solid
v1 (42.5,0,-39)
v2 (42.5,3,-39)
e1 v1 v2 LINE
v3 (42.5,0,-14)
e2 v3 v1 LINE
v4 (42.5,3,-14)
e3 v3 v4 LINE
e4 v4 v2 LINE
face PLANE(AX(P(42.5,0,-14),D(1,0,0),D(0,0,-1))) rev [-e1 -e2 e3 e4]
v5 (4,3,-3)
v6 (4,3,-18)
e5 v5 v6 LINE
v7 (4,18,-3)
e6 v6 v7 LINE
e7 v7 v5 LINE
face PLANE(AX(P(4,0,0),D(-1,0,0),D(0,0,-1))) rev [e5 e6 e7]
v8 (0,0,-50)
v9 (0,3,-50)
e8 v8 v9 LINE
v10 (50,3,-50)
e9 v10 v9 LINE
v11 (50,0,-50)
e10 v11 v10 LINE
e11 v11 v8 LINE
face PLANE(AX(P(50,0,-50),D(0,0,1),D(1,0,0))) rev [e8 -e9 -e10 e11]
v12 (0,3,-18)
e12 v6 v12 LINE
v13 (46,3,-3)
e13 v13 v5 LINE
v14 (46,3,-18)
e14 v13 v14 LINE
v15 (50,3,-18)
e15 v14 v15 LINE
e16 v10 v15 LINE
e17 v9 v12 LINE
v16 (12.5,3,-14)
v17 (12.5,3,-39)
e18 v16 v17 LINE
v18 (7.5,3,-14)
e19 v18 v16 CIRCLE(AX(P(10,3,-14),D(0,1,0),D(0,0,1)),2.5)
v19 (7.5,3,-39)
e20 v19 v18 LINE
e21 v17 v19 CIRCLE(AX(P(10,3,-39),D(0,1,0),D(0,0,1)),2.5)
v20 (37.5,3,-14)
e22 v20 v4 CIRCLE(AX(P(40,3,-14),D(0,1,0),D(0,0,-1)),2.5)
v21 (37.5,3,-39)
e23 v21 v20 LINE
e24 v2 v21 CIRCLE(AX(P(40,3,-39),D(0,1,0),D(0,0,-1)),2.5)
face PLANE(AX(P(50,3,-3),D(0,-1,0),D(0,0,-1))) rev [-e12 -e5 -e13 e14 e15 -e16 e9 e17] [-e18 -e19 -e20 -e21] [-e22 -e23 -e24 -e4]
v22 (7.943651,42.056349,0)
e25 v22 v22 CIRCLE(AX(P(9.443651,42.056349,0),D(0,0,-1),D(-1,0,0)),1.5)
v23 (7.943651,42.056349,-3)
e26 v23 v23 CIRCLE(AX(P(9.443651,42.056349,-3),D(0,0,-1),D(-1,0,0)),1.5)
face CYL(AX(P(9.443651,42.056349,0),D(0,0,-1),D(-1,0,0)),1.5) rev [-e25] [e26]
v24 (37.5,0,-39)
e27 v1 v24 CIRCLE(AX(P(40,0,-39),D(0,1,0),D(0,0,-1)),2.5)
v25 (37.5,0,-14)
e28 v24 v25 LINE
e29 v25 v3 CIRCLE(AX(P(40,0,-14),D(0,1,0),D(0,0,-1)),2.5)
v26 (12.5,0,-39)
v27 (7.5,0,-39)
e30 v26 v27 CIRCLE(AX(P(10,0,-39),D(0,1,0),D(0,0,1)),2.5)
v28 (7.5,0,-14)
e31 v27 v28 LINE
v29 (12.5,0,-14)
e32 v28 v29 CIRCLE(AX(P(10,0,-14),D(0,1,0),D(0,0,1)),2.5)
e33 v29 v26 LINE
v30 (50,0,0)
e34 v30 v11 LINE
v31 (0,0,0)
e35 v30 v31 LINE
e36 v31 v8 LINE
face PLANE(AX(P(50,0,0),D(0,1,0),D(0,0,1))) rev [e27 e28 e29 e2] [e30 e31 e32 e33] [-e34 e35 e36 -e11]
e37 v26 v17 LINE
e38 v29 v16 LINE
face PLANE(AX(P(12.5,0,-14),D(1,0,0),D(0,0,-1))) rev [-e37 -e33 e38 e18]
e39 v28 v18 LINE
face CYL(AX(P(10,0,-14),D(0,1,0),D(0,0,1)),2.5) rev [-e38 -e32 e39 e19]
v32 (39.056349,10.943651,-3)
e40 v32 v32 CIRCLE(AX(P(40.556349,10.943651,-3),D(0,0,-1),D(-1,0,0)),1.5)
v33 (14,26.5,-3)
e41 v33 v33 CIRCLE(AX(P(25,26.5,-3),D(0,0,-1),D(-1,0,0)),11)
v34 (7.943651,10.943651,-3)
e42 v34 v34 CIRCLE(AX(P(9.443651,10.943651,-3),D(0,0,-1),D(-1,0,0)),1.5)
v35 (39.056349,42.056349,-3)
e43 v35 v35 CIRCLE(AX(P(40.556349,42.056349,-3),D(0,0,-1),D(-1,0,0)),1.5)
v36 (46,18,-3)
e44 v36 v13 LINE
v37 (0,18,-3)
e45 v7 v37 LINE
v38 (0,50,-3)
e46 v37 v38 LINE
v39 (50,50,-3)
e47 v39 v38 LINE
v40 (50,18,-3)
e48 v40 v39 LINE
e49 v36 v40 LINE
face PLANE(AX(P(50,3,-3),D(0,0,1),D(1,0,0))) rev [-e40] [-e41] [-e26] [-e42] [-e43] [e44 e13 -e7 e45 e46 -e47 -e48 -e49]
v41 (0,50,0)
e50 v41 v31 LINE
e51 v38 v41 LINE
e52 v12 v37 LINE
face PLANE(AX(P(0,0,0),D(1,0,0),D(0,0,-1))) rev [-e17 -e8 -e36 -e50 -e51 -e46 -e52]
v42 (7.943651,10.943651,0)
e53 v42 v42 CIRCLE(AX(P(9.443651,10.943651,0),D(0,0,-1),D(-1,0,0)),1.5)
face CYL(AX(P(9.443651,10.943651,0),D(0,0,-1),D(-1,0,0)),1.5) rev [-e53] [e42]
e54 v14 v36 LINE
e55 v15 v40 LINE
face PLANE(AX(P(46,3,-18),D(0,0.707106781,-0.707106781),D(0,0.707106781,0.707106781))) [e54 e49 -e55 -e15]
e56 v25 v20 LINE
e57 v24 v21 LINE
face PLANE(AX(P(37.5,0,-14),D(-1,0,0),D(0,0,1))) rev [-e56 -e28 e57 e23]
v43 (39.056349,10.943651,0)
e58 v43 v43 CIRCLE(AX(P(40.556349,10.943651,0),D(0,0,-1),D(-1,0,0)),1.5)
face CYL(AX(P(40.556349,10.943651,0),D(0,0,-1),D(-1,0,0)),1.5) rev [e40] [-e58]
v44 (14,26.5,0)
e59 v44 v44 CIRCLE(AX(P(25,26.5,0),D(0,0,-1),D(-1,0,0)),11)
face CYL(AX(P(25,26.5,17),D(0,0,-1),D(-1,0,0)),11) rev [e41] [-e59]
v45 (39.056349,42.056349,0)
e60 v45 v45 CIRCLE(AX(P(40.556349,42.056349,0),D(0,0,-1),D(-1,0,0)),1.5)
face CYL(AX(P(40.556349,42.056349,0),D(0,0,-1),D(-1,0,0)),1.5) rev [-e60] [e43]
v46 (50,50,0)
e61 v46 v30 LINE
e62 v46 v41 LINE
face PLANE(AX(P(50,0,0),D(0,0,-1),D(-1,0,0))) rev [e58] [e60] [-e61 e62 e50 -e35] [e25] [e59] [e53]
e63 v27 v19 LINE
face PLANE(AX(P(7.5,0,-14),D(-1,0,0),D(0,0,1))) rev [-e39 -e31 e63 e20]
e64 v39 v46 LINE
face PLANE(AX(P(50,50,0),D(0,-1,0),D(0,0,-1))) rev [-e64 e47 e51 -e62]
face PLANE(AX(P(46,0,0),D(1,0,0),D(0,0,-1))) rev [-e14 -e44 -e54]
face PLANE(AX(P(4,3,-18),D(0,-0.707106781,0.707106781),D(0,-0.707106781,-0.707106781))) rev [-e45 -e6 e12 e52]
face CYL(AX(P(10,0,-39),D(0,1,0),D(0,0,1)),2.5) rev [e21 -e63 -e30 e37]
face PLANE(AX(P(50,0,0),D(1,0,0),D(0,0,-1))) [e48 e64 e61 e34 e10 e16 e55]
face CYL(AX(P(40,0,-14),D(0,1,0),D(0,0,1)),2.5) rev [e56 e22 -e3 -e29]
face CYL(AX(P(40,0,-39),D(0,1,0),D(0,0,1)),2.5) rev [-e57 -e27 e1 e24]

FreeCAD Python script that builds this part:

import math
import FreeCAD as App
import Part
import Sketcher
from FreeCAD import Vector

doc = App.newDocument("Part")
params = doc.addObject("Spreadsheet::Sheet", "Params")
for row, (alias, value) in enumerate([
    ("sketch1_width", "50 mm"),
    ("sketch1_width2", "3 mm"),
    ("pad1_length", "50 mm"),
    ("sketch2_diameter", "22 mm"),
    ("pocket1_length", "20 mm"),
    ("sketch3_radius", "2.5 mm"),
    ("sketch3_height", "25 mm"),
    ("sketch4_width", "15 mm"),
    ("pad2_length", "4 mm"),
    ("sketch5_diameter", "3 mm"),
], start=1):
    params.set(f"A{row}", alias)
    params.set(f"B{row}", "=" + value)
    params.setAlias(f"B{row}", alias)

body = doc.addObject("PartDesign::Body", "Body")

# Sketch on YZ plane
sketch1 = body.newObject("Sketcher::SketchObject", "Sketch")
sketch1.AttachmentSupport = (doc.getObject("YZ_Plane"), [""])
sketch1.MapMode = "FlatFace"
sketch1.addGeometry([
    Part.LineSegment(Vector(50, 0, 0), Vector(0, 0, 0)),  # 0
    Part.LineSegment(Vector(0, 0, 0), Vector(0, -50, 0)),  # 1
    Part.LineSegment(Vector(0, -50, 0), Vector(3, -50, 0)),  # 2
    Part.LineSegment(Vector(3, -50, 0), Vector(3, -3, 0)),  # 3
    Part.LineSegment(Vector(3, -3, 0), Vector(50, -3, 0)),  # 4
    Part.LineSegment(Vector(50, -3, 0), Vector(50, 0, 0)),  # 5
], False)
sketch1.addConstraint([
    Sketcher.Constraint("Coincident", 0, 2, 1, 1),
    Sketcher.Constraint("Coincident", 1, 2, 2, 1),
    Sketcher.Constraint("Coincident", 2, 2, 3, 1),
    Sketcher.Constraint("Coincident", 3, 2, 4, 1),
    Sketcher.Constraint("Coincident", 4, 2, 5, 1),
    Sketcher.Constraint("Coincident", 5, 2, 0, 1),
    Sketcher.Constraint("Horizontal", 0),
    Sketcher.Constraint("Vertical", 1),
    Sketcher.Constraint("Horizontal", 2),
    Sketcher.Constraint("Vertical", 3),
    Sketcher.Constraint("Horizontal", 4),
    Sketcher.Constraint("Vertical", 5),
    Sketcher.Constraint("Coincident", 0, 2, -1, 1),
    Sketcher.Constraint("Equal", 0, 1),
    Sketcher.Constraint("Equal", 4, 3),
    Sketcher.Constraint("DistanceX", 0, 2, 0, 1, 50.0),
    Sketcher.Constraint("DistanceX", 2, 1, 2, 2, 3.0),
])
sketch1.setExpression("Constraints[15]", "Params.sketch1_width")
sketch1.setExpression("Constraints[16]", "Params.sketch1_width2")
pad1 = body.newObject("PartDesign::Pad", "Pad")
pad1.Profile = sketch1
pad1.setExpression("Length", "Params.pad1_length")

# Sketch on XY plane
sketch2 = body.newObject("Sketcher::SketchObject", "Sketch001")
sketch2.AttachmentSupport = (doc.getObject("XY_Plane"), [""])
sketch2.MapMode = "FlatFace"
sketch2.AttachmentOffset = App.Placement(Vector(0, 0, -3), App.Rotation())
sketch2.addGeometry(Part.Circle(Vector(25, 26, 0), Vector(0, 0, 1), 11), False)
sketch2.addConstraint([
    Sketcher.Constraint("Diameter", 0, 22.0),
    Sketcher.Constraint("DistanceX", -1, 1, 0, 3, 25.0),
    Sketcher.Constraint("DistanceY", -1, 1, 0, 3, 26.5),
])
sketch2.setExpression("Constraints[0]", "Params.sketch2_diameter")
pocket1 = body.newObject("PartDesign::Pocket", "Pocket")
pocket1.Profile = sketch2
pocket1.setExpression("Length", "Params.pocket1_length")
pocket1.Reversed = True

# Sketch on XZ plane
sketch3 = body.newObject("Sketcher::SketchObject", "Sketch002")
sketch3.AttachmentSupport = (doc.getObject("XZ_Plane"), [""])
sketch3.MapMode = "FlatFace"
sketch3.AttachmentOffset = App.Placement(Vector(0, 0, -3), App.Rotation())
sketch3.addGeometry([
    Part.LineSegment(Vector(7.5, -39, 0), Vector(7.5, -14, 0)),  # 0
    Part.ArcOfCircle(Part.Circle(Vector(10, -14, 0), Vector(0, 0, 1), 2.5), math.radians(0), math.radians(180)),  # 1
    Part.LineSegment(Vector(12.5, -14, 0), Vector(12.5, -39, 0)),  # 2
    Part.ArcOfCircle(Part.Circle(Vector(10, -39, 0), Vector(0, 0, 1), 2.5), math.radians(180), math.radians(360)),  # 3
    Part.LineSegment(Vector(42.5, -14, 0), Vector(42.5, -39, 0)),  # 4
    Part.ArcOfCircle(Part.Circle(Vector(40, -39, 0), Vector(0, 0, 1), 2.5), math.radians(180), math.radians(360)),  # 5
    Part.LineSegment(Vector(37.5, -39, 0), Vector(37.5, -14, 0)),  # 6
    Part.ArcOfCircle(Part.Circle(Vector(40, -14, 0), Vector(0, 0, 1), 2.5), math.radians(0), math.radians(180)),  # 7
], False)
sketch3.addConstraint([
    Sketcher.Constraint("Tangent", 0, 2, 1, 2),
    Sketcher.Constraint("Tangent", 1, 1, 2, 1),
    Sketcher.Constraint("Tangent", 2, 2, 3, 2),
    Sketcher.Constraint("Tangent", 3, 1, 0, 1),
    Sketcher.Constraint("Tangent", 4, 2, 5, 2),
    Sketcher.Constraint("Tangent", 5, 1, 6, 1),
    Sketcher.Constraint("Tangent", 6, 2, 7, 2),
    Sketcher.Constraint("Tangent", 7, 1, 4, 1),
    Sketcher.Constraint("Vertical", 0),
    Sketcher.Constraint("Vertical", 2),
    Sketcher.Constraint("Vertical", 4),
    Sketcher.Constraint("Vertical", 6),
    Sketcher.Constraint("Equal", 3, 5),
    Sketcher.Constraint("Horizontal", 3, 3, 5, 3),
    Sketcher.Constraint("Horizontal", 1, 3, 7, 3),
    Sketcher.Constraint("Radius", 1, 2.5),
    Sketcher.Constraint("DistanceY", 0, 1, 0, 2, 25.0),
    Sketcher.Constraint("DistanceX", -1, 1, 1, 3, 10.0),
    Sketcher.Constraint("DistanceY", 1, 3, -1, 1, 14.0),
    Sketcher.Constraint("DistanceX", -1, 1, 5, 3, 40.0),
])
sketch3.setExpression("Constraints[15]", "Params.sketch3_radius")
sketch3.setExpression("Constraints[16]", "Params.sketch3_height")
pocket2 = body.newObject("PartDesign::Pocket", "Pocket001")
pocket2.Profile = sketch3
pocket2.Type = "ThroughAll"
pocket2.Reversed = True

# Sketch on YZ plane
sketch4 = body.newObject("Sketcher::SketchObject", "Sketch003")
sketch4.AttachmentSupport = (doc.getObject("YZ_Plane"), [""])
sketch4.MapMode = "FlatFace"
sketch4.AttachmentOffset = App.Placement(Vector(0, 0, 50), App.Rotation())
sketch4.addGeometry([
    Part.LineSegment(Vector(3, -3, 0), Vector(3, -18, 0)),
    Part.LineSegment(Vector(3, -18, 0), Vector(18, -3, 0)),
    Part.LineSegment(Vector(18, -3, 0), Vector(3, -3, 0)),
], False)
sketch4.addConstraint([
    Sketcher.Constraint("Coincident", 0, 2, 1, 1),
    Sketcher.Constraint("Coincident", 1, 2, 2, 1),
    Sketcher.Constraint("Coincident", 2, 2, 0, 1),
    Sketcher.Constraint("Vertical", 0),
    Sketcher.Constraint("Horizontal", 2),
    Sketcher.Constraint("Equal", 2, 0),
    Sketcher.Constraint("DistanceX", 2, 2, 2, 1, 15.0),
    Sketcher.Constraint("DistanceX", -1, 1, 0, 2, 3.0),
    Sketcher.Constraint("DistanceY", 0, 2, -1, 1, 18.0),
])
sketch4.setExpression("Constraints[6]", "Params.sketch4_width")
pad2 = body.newObject("PartDesign::Pad", "Pad001")
pad2.Profile = sketch4
pad2.setExpression("Length", "Params.pad2_length")
pad2.Reversed = True
doc.recompute()

datumplane = body.newObject("PartDesign::Plane", "DatumPlane")
datumplane.AttachmentSupport = (doc.getObject("YZ_Plane"), [""])
datumplane.MapMode = "FlatFace"
datumplane.AttachmentOffset = App.Placement(Vector(0, 0, 25), App.Rotation())
mirrored = body.newObject("PartDesign::Mirrored", "Mirrored")
mirrored.Originals = [pad2]
mirrored.MirrorPlane = (datumplane, [""])
body.Tip = mirrored

# Sketch on XY plane
sketch5 = body.newObject("Sketcher::SketchObject", "Sketch004")
sketch5.AttachmentSupport = (doc.getObject("XY_Plane"), [""])
sketch5.MapMode = "FlatFace"
sketch5.AttachmentOffset = App.Placement(Vector(0, 0, -3), App.Rotation())
sketch5.addGeometry([
    Part.Circle(Vector(40.6, 42.1, 0), Vector(0, 0, 1), 1.5),
    Part.Circle(Vector(9.4, 42.1, 0), Vector(0, 0, 1), 1.5),
    Part.Circle(Vector(40.6, 10.9, 0), Vector(0, 0, 1), 1.5),
    Part.Circle(Vector(9.4, 10.9, 0), Vector(0, 0, 1), 1.5),
], False)
sketch5.addConstraint([
    Sketcher.Constraint("Equal", 0, 1),
    Sketcher.Constraint("Equal", 1, 2),
    Sketcher.Constraint("Equal", 2, 3),
    Sketcher.Constraint("Horizontal", 0, 3, 1, 3),
    Sketcher.Constraint("Horizontal", 2, 3, 3, 3),
    Sketcher.Constraint("Vertical", 0, 3, 2, 3),
    Sketcher.Constraint("Vertical", 1, 3, 3, 3),
    Sketcher.Constraint("Diameter", 0, 3.0),
    Sketcher.Constraint("DistanceX", 1, 3, 0, 3, 31.112698),
    Sketcher.Constraint("DistanceY", 2, 3, 0, 3, 31.112698),
    Sketcher.Constraint("DistanceX", -1, 1, 0, 3, 40.556349),
    Sketcher.Constraint("DistanceY", -1, 1, 0, 3, 42.056349),
])
sketch5.setExpression("Constraints[7]", "Params.sketch5_diameter")
pocket3 = body.newObject("PartDesign::Pocket", "Pocket002")
pocket3.Profile = sketch5
pocket3.Type = "ThroughAll"
pocket3.Reversed = True

doc.recompute()
